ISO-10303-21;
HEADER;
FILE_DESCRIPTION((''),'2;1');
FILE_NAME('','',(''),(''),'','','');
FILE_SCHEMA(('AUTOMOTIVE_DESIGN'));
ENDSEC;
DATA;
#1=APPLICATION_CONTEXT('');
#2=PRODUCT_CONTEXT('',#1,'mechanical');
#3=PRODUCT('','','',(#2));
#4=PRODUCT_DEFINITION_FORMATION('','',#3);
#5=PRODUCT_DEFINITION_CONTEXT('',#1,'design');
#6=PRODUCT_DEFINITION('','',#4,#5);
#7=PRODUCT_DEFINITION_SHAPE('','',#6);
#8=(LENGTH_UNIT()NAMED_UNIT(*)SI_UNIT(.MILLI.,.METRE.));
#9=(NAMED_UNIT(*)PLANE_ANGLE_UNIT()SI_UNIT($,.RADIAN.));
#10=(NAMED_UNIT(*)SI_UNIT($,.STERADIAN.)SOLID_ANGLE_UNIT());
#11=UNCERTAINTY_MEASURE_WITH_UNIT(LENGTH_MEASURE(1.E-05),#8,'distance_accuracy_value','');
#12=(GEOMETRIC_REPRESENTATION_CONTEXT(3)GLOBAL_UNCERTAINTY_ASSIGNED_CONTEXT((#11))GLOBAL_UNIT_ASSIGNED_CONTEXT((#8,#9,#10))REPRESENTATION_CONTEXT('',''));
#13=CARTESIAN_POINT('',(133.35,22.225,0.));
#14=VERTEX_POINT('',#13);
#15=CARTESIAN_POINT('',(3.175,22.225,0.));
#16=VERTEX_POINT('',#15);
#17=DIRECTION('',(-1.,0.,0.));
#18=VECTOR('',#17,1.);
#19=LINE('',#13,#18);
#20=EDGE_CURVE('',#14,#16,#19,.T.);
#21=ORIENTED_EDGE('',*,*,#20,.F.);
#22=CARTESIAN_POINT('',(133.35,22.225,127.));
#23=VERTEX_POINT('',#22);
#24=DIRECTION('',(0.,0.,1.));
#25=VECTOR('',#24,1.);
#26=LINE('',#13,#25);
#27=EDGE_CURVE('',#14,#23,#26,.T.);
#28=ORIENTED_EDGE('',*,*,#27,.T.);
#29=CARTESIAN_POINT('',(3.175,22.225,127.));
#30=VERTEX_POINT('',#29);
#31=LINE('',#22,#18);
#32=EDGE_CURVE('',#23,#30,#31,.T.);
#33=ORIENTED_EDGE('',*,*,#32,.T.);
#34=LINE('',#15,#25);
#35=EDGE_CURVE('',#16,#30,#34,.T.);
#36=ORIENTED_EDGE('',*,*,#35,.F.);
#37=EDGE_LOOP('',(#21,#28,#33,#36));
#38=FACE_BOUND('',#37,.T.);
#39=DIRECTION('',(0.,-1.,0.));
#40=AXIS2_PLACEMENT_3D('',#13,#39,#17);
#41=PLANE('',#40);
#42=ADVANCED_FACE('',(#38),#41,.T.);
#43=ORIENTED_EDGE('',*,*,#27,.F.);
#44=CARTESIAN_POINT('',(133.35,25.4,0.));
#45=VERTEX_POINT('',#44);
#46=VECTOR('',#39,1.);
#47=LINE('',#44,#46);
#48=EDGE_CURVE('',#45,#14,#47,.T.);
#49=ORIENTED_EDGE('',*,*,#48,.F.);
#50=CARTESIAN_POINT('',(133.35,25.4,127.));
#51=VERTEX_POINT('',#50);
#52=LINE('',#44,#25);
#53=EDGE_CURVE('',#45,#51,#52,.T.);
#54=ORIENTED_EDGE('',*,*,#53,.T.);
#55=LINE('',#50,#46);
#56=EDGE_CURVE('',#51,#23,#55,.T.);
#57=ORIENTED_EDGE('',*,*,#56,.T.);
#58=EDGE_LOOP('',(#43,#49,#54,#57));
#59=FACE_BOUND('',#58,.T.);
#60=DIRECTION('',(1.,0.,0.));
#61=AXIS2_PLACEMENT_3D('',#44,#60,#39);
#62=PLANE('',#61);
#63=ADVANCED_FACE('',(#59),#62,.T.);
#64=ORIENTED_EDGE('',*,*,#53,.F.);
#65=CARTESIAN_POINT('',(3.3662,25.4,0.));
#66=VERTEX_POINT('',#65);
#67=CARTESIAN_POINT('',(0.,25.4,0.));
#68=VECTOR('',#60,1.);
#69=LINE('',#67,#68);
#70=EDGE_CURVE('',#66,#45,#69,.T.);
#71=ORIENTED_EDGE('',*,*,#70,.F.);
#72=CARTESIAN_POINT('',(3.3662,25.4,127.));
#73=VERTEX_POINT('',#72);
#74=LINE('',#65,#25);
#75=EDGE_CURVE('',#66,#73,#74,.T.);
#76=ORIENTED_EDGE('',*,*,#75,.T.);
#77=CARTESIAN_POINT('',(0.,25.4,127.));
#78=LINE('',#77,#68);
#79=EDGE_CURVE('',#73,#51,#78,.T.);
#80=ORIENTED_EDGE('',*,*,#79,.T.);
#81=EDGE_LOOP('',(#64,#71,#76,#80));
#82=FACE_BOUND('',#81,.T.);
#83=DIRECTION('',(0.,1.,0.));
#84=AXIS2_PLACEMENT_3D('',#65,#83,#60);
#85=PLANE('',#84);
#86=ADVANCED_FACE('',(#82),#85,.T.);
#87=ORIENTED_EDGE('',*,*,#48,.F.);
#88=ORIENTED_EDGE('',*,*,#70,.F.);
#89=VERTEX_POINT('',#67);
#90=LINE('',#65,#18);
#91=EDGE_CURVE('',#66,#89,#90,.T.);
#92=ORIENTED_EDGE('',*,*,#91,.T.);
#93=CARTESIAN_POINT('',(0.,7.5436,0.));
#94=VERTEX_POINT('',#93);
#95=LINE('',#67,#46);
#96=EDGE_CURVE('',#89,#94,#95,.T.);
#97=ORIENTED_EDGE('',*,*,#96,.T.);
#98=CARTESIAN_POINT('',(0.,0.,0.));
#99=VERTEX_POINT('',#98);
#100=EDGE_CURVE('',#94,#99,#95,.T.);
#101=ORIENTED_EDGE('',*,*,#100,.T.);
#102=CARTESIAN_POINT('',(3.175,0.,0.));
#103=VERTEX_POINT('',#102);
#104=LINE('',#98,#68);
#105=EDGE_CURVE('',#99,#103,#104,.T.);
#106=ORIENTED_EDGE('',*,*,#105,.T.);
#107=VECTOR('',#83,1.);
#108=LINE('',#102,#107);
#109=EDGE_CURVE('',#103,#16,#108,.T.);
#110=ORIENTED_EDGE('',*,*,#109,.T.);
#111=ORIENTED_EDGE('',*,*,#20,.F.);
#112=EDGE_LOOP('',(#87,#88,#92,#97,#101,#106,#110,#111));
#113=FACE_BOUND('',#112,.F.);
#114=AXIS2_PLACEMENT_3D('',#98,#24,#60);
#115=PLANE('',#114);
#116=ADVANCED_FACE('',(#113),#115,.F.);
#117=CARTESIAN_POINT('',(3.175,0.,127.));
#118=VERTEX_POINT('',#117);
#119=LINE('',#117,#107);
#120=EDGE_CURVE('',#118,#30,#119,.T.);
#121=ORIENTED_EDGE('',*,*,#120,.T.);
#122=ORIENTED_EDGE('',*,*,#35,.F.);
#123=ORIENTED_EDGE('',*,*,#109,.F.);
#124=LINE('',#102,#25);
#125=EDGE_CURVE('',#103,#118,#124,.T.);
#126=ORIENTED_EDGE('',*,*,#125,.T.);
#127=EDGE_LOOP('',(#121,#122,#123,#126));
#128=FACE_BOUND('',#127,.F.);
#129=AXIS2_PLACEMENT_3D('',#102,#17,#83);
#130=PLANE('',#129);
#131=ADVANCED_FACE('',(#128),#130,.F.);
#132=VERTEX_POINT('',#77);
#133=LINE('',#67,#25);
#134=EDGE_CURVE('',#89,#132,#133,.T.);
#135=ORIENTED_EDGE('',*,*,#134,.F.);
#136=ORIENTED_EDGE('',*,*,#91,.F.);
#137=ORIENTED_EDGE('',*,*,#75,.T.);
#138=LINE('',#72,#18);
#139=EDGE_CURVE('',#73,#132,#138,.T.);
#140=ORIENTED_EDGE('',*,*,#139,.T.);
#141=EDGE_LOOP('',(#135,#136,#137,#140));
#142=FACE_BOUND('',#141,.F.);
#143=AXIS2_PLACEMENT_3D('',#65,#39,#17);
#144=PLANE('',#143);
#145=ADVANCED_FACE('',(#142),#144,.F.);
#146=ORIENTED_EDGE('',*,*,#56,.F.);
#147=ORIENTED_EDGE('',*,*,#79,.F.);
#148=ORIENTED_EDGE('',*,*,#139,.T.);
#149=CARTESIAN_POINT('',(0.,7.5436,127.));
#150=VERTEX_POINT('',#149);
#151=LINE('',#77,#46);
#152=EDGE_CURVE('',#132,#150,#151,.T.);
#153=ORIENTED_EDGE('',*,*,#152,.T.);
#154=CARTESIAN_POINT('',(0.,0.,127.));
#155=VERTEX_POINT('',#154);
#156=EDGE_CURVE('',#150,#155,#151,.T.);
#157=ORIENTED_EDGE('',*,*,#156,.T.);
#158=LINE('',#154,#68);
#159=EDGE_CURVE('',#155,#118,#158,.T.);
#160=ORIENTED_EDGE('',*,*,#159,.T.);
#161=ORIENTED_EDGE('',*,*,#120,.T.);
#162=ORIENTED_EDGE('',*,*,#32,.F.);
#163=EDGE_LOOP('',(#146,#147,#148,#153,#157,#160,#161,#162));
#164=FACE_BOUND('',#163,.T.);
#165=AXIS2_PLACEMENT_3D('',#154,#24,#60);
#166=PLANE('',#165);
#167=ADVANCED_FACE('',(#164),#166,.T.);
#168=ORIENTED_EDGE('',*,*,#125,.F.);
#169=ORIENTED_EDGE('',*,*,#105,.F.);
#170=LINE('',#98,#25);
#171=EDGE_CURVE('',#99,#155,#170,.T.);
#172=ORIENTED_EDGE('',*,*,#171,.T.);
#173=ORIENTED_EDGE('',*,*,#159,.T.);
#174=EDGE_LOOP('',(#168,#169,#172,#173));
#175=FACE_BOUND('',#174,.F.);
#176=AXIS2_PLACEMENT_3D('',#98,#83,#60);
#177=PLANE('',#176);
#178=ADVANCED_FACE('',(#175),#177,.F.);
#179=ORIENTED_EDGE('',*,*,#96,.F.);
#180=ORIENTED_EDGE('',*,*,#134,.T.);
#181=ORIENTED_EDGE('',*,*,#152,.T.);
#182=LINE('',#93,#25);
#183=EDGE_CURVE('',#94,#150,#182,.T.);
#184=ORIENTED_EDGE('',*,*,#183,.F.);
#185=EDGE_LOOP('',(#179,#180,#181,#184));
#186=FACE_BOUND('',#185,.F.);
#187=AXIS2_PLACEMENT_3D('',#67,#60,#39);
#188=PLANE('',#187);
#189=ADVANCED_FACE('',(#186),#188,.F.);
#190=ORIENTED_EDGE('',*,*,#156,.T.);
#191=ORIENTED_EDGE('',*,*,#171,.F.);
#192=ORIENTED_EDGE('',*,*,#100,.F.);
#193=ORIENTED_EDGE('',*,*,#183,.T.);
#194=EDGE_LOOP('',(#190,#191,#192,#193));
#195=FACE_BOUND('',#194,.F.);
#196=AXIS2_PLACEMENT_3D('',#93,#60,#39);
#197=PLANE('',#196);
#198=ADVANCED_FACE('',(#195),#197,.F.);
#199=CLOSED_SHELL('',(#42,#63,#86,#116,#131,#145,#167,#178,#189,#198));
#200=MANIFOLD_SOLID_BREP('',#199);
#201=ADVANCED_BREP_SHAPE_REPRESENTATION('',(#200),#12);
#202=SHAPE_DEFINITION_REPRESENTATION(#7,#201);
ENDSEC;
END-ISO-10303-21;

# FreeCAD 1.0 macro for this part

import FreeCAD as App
import Part
import Sketcher
from FreeCAD import Vector
Q = App.Units.Quantity

doc = App.newDocument("Part")
params = doc.addObject("Spreadsheet::Sheet", "Params")
for row, (alias, value) in enumerate([
    ("sketch1_height", "1 in"),
    ("sketch1_width", "5.25 in"),
    ("sketch1_width2", "0.125 in"),
    ("pad1_length", "5 in"),
], start=1):
    params.set(f"A{row}", alias)
    params.set(f"B{row}", "=" + value)
    params.setAlias(f"B{row}", alias)

body = doc.addObject("PartDesign::Body", "Body")

# Sketch on XY plane
sketch1 = body.newObject("Sketcher::SketchObject", "Sketch")
sketch1.AttachmentSupport = (doc.getObject("XY_Plane"), [""])
sketch1.MapMode = "FlatFace"
sketch1.addGeometry([
    Part.LineSegment(Vector(0, 25.4, 0), Vector(0, 0, 0)),  # 0
    Part.LineSegment(Vector(0, 0, 0), Vector(3.2, 0, 0)),  # 1
    Part.LineSegment(Vector(3.2, 0, 0), Vector(3.2, 22.2, 0)),  # 2
    Part.LineSegment(Vector(3.2, 22.2, 0), Vector(133.3, 22.2, 0)),  # 3
    Part.LineSegment(Vector(133.3, 22.2, 0), Vector(133.3, 25.4, 0)),  # 4
    Part.LineSegment(Vector(133.3, 25.4, 0), Vector(0, 25.4, 0)),  # 5
], False)
sketch1.addConstraint([
    Sketcher.Constraint("Coincident", 0, 2, 1, 1),
    Sketcher.Constraint("Coincident", 1, 2, 2, 1),
    Sketcher.Constraint("Coincident", 2, 2, 3, 1),
    Sketcher.Constraint("Coincident", 3, 2, 4, 1),
    Sketcher.Constraint("Coincident", 4, 2, 5, 1),
    Sketcher.Constraint("Coincident", 5, 2, 0, 1),
    Sketcher.Constraint("Vertical", 0),
    Sketcher.Constraint("Horizontal", 1),
    Sketcher.Constraint("Vertical", 2),
    Sketcher.Constraint("Horizontal", 3),
    Sketcher.Constraint("Vertical", 4),
    Sketcher.Constraint("Horizontal", 5),
    Sketcher.Constraint("Coincident", 0, 2, -1, 1),
    Sketcher.Constraint("Equal", 1, 4),
    Sketcher.Constraint("DistanceY", 0, 2, 0, 1, Q("1 in")),
    Sketcher.Constraint("DistanceX", 5, 2, 5, 1, Q("5.25 in")),
    Sketcher.Constraint("DistanceX", 1, 1, 1, 2, Q("0.125 in")),
])
sketch1.setExpression("Constraints[14]", "Params.sketch1_height")
sketch1.setExpression("Constraints[15]", "Params.sketch1_width")
sketch1.setExpression("Constraints[16]", "Params.sketch1_width2")
pad1 = body.newObject("PartDesign::Pad", "Pad")
pad1.Profile = sketch1
pad1.setExpression("Length", "Params.pad1_length")

doc.recompute()
